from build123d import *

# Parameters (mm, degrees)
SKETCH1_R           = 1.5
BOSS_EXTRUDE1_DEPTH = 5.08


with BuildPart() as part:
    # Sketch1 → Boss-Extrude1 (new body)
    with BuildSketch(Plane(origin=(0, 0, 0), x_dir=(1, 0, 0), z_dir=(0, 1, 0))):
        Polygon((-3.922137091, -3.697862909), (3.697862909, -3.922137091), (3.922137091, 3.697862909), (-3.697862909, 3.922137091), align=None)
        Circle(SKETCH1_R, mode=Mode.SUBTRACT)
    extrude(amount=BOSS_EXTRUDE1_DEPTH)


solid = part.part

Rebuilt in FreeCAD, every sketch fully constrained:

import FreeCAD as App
import Part
import Sketcher

V = App.Vector
Q = App.Units.Quantity

doc = App.newDocument("Part")
body = doc.addObject("PartDesign::Body", "Body")

# Sketch on XZ plane
sketch1 = body.newObject("Sketcher::SketchObject", "Sketch")
sketch1.AttachmentSupport = (doc.getObject("XZ_Plane"), [""])
sketch1.MapMode = "FlatFace"
sketch1.addGeometry([
    Part.LineSegment(V(-3.922137, 3.697863, 0), V(3.697863, 3.922137, 0)),  # 0
    Part.LineSegment(V(3.697863, 3.922137, 0), V(3.922137, -3.697863, 0)),  # 1
    Part.LineSegment(V(3.922137, -3.697863, 0), V(-3.697863, -3.922137, 0)),  # 2
    Part.LineSegment(V(-3.697863, -3.922137, 0), V(-3.922137, 3.697863, 0)),  # 3
    Part.Circle(V(0, 0, 0), V(0, 0, 1), 1.5),  # 4
], False)
sketch1.addConstraint([
    Sketcher.Constraint("Coincident", 0, 2, 1, 1),
    Sketcher.Constraint("Coincident", 1, 2, 2, 1),
    Sketcher.Constraint("Coincident", 2, 2, 3, 1),
    Sketcher.Constraint("Coincident", 3, 2, 0, 1),
    Sketcher.Constraint("Coincident", 4, 3, -1, 1),
    Sketcher.Constraint("Symmetric", 0, 2, 2, 2, -1, 1),
    Sketcher.Constraint("Symmetric", 1, 2, 3, 2, -1, 1),
    Sketcher.Constraint("Perpendicular", 0, 1),
    Sketcher.Constraint("Equal", 0, 1),
    Sketcher.Constraint("Diameter", 4, Q("3 mm")),
    Sketcher.Constraint("DistanceY", 1, 2, 0, 2, Q("7.62 mm")),
    Sketcher.Constraint("Distance", 0, Q("7.6233 mm")),
])
pad1 = body.newObject("PartDesign::Pad", "Pad")
pad1.Profile = sketch1
pad1.Length = 5.08
pad1.Reversed = True

doc.recompute()
